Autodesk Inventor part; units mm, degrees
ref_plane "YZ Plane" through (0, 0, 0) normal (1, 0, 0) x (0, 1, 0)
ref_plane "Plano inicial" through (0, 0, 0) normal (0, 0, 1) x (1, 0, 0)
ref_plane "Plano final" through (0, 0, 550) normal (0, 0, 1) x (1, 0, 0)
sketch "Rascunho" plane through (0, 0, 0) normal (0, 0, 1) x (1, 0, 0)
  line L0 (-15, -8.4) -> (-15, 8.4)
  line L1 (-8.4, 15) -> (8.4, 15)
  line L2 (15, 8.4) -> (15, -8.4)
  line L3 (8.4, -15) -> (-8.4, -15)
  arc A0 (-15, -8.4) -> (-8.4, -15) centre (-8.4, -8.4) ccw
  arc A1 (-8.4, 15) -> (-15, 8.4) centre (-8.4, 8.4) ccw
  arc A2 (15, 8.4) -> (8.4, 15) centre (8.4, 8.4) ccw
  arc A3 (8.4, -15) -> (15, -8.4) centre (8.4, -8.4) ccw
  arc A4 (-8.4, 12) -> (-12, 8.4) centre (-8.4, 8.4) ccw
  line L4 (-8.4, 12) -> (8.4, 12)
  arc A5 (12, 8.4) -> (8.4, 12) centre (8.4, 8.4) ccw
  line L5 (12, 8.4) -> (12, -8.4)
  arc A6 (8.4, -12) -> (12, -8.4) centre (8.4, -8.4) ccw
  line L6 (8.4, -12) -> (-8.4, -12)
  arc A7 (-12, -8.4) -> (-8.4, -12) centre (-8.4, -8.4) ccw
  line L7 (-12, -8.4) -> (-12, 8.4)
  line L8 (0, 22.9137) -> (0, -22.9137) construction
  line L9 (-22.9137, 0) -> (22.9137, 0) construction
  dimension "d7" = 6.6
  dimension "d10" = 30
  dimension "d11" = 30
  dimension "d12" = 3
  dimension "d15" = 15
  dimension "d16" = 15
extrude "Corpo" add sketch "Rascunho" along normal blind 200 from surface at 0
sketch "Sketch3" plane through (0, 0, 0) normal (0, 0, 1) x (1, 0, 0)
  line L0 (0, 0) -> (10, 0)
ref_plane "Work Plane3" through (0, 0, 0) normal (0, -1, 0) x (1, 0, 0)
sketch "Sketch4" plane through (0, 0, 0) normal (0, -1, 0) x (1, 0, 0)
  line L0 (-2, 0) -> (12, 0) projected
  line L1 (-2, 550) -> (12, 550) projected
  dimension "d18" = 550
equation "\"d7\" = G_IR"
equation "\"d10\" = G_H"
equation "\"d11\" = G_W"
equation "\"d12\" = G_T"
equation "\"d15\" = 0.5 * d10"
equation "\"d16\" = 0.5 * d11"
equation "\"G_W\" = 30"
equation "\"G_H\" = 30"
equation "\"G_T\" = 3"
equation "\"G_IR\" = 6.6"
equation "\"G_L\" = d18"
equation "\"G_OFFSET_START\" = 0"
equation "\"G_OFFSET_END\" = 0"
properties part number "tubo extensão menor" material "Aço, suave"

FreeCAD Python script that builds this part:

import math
import FreeCAD as App
import Part
import Sketcher
Q = App.Units.Quantity

doc = App.newDocument("Part")
body = doc.addObject("PartDesign::Body", "Body")

# Sketch on XY plane
sketch1 = body.newObject("Sketcher::SketchObject", "Sketch")
sketch1.AttachmentSupport = (doc.getObject("XY_Plane"), [""])
sketch1.MapMode = "FlatFace"
sketch1.addGeometry([
    Part.LineSegment(App.Vector(-15, 8.4, 0), App.Vector(-15, -8.4, 0)),  # 0
    Part.ArcOfCircle(Part.Circle(App.Vector(-8.4, -8.4, 0), App.Vector(0, 0, 1), 6.6), math.radians(180), math.radians(270)),  # 1
    Part.LineSegment(App.Vector(-8.4, -15, 0), App.Vector(8.4, -15, 0)),  # 2
    Part.ArcOfCircle(Part.Circle(App.Vector(8.4, -8.4, 0), App.Vector(0, 0, 1), 6.6), math.radians(-90), math.radians(0)),  # 3
    Part.LineSegment(App.Vector(15, -8.4, 0), App.Vector(15, 8.4, 0)),  # 4
    Part.ArcOfCircle(Part.Circle(App.Vector(8.4, 8.4, 0), App.Vector(0, 0, 1), 6.6), math.radians(0), math.radians(90)),  # 5
    Part.LineSegment(App.Vector(8.4, 15, 0), App.Vector(-8.4, 15, 0)),  # 6
    Part.ArcOfCircle(Part.Circle(App.Vector(-8.4, 8.4, 0), App.Vector(0, 0, 1), 6.6), math.radians(90), math.radians(180)),  # 7
    Part.ArcOfCircle(Part.Circle(App.Vector(-8.4, 8.4, 0), App.Vector(0, 0, 1), 3.6), math.radians(90), math.radians(180)),  # 8
    Part.LineSegment(App.Vector(-8.4, 12, 0), App.Vector(8.4, 12, 0)),  # 9
    Part.ArcOfCircle(Part.Circle(App.Vector(8.4, 8.4, 0), App.Vector(0, 0, 1), 3.6), math.radians(0), math.radians(90)),  # 10
    Part.LineSegment(App.Vector(12, 8.4, 0), App.Vector(12, -8.4, 0)),  # 11
    Part.ArcOfCircle(Part.Circle(App.Vector(8.4, -8.4, 0), App.Vector(0, 0, 1), 3.6), math.radians(-90), math.radians(0)),  # 12
    Part.LineSegment(App.Vector(8.4, -12, 0), App.Vector(-8.4, -12, 0)),  # 13
    Part.ArcOfCircle(Part.Circle(App.Vector(-8.4, -8.4, 0), App.Vector(0, 0, 1), 3.6), math.radians(180), math.radians(270)),  # 14
    Part.LineSegment(App.Vector(-12, -8.4, 0), App.Vector(-12, 8.4, 0)),  # 15
], False)
sketch1.addConstraint([
    Sketcher.Constraint("Tangent", 0, 2, 1, 1),
    Sketcher.Constraint("Tangent", 1, 2, 2, 1),
    Sketcher.Constraint("Tangent", 2, 2, 3, 1),
    Sketcher.Constraint("Tangent", 3, 2, 4, 1),
    Sketcher.Constraint("Tangent", 4, 2, 5, 1),
    Sketcher.Constraint("Tangent", 5, 2, 6, 1),
    Sketcher.Constraint("Tangent", 6, 2, 7, 1),
    Sketcher.Constraint("Tangent", 7, 2, 0, 1),
    Sketcher.Constraint("Tangent", 8, 1, 9, 1),
    Sketcher.Constraint("Tangent", 9, 2, 10, 2),
    Sketcher.Constraint("Tangent", 10, 1, 11, 1),
    Sketcher.Constraint("Tangent", 11, 2, 12, 2),
    Sketcher.Constraint("Tangent", 12, 1, 13, 1),
    Sketcher.Constraint("Tangent", 13, 2, 14, 2),
    Sketcher.Constraint("Tangent", 14, 1, 15, 1),
    Sketcher.Constraint("Tangent", 15, 2, 8, 2),
    Sketcher.Constraint("Vertical", 0),
    Sketcher.Constraint("Horizontal", 2),
    Sketcher.Constraint("Vertical", 4),
    Sketcher.Constraint("Horizontal", 6),
    Sketcher.Constraint("Horizontal", 9),
    Sketcher.Constraint("Vertical", 11),
    Sketcher.Constraint("Horizontal", 13),
    Sketcher.Constraint("Vertical", 15),
    Sketcher.Constraint("Coincident", 8, 3, 7, 3),
    Sketcher.Constraint("Coincident", 10, 3, 5, 3),
    Sketcher.Constraint("Coincident", 12, 3, 3, 3),
    Sketcher.Constraint("Equal", 1, 3),
    Sketcher.Constraint("Equal", 3, 5),
    Sketcher.Constraint("Equal", 5, 7),
    Sketcher.Constraint("Equal", 12, 14),
    Sketcher.Constraint("Symmetric", 1, 3, 5, 3, -1, 1),
    Sketcher.Constraint("Equal", 13, 0),
    Sketcher.Constraint("Radius", 1, Q("6.6 mm")),
    Sketcher.Constraint("DistanceX", 0, 2, -1, 1, Q("15 mm")),
    Sketcher.Constraint("DistanceY", 8, 1, 6, 2, Q("3 mm")),
])
pad1 = body.newObject("PartDesign::Pad", "Pad")
pad1.Profile = sketch1
pad1.Length = 200

doc.recompute()
